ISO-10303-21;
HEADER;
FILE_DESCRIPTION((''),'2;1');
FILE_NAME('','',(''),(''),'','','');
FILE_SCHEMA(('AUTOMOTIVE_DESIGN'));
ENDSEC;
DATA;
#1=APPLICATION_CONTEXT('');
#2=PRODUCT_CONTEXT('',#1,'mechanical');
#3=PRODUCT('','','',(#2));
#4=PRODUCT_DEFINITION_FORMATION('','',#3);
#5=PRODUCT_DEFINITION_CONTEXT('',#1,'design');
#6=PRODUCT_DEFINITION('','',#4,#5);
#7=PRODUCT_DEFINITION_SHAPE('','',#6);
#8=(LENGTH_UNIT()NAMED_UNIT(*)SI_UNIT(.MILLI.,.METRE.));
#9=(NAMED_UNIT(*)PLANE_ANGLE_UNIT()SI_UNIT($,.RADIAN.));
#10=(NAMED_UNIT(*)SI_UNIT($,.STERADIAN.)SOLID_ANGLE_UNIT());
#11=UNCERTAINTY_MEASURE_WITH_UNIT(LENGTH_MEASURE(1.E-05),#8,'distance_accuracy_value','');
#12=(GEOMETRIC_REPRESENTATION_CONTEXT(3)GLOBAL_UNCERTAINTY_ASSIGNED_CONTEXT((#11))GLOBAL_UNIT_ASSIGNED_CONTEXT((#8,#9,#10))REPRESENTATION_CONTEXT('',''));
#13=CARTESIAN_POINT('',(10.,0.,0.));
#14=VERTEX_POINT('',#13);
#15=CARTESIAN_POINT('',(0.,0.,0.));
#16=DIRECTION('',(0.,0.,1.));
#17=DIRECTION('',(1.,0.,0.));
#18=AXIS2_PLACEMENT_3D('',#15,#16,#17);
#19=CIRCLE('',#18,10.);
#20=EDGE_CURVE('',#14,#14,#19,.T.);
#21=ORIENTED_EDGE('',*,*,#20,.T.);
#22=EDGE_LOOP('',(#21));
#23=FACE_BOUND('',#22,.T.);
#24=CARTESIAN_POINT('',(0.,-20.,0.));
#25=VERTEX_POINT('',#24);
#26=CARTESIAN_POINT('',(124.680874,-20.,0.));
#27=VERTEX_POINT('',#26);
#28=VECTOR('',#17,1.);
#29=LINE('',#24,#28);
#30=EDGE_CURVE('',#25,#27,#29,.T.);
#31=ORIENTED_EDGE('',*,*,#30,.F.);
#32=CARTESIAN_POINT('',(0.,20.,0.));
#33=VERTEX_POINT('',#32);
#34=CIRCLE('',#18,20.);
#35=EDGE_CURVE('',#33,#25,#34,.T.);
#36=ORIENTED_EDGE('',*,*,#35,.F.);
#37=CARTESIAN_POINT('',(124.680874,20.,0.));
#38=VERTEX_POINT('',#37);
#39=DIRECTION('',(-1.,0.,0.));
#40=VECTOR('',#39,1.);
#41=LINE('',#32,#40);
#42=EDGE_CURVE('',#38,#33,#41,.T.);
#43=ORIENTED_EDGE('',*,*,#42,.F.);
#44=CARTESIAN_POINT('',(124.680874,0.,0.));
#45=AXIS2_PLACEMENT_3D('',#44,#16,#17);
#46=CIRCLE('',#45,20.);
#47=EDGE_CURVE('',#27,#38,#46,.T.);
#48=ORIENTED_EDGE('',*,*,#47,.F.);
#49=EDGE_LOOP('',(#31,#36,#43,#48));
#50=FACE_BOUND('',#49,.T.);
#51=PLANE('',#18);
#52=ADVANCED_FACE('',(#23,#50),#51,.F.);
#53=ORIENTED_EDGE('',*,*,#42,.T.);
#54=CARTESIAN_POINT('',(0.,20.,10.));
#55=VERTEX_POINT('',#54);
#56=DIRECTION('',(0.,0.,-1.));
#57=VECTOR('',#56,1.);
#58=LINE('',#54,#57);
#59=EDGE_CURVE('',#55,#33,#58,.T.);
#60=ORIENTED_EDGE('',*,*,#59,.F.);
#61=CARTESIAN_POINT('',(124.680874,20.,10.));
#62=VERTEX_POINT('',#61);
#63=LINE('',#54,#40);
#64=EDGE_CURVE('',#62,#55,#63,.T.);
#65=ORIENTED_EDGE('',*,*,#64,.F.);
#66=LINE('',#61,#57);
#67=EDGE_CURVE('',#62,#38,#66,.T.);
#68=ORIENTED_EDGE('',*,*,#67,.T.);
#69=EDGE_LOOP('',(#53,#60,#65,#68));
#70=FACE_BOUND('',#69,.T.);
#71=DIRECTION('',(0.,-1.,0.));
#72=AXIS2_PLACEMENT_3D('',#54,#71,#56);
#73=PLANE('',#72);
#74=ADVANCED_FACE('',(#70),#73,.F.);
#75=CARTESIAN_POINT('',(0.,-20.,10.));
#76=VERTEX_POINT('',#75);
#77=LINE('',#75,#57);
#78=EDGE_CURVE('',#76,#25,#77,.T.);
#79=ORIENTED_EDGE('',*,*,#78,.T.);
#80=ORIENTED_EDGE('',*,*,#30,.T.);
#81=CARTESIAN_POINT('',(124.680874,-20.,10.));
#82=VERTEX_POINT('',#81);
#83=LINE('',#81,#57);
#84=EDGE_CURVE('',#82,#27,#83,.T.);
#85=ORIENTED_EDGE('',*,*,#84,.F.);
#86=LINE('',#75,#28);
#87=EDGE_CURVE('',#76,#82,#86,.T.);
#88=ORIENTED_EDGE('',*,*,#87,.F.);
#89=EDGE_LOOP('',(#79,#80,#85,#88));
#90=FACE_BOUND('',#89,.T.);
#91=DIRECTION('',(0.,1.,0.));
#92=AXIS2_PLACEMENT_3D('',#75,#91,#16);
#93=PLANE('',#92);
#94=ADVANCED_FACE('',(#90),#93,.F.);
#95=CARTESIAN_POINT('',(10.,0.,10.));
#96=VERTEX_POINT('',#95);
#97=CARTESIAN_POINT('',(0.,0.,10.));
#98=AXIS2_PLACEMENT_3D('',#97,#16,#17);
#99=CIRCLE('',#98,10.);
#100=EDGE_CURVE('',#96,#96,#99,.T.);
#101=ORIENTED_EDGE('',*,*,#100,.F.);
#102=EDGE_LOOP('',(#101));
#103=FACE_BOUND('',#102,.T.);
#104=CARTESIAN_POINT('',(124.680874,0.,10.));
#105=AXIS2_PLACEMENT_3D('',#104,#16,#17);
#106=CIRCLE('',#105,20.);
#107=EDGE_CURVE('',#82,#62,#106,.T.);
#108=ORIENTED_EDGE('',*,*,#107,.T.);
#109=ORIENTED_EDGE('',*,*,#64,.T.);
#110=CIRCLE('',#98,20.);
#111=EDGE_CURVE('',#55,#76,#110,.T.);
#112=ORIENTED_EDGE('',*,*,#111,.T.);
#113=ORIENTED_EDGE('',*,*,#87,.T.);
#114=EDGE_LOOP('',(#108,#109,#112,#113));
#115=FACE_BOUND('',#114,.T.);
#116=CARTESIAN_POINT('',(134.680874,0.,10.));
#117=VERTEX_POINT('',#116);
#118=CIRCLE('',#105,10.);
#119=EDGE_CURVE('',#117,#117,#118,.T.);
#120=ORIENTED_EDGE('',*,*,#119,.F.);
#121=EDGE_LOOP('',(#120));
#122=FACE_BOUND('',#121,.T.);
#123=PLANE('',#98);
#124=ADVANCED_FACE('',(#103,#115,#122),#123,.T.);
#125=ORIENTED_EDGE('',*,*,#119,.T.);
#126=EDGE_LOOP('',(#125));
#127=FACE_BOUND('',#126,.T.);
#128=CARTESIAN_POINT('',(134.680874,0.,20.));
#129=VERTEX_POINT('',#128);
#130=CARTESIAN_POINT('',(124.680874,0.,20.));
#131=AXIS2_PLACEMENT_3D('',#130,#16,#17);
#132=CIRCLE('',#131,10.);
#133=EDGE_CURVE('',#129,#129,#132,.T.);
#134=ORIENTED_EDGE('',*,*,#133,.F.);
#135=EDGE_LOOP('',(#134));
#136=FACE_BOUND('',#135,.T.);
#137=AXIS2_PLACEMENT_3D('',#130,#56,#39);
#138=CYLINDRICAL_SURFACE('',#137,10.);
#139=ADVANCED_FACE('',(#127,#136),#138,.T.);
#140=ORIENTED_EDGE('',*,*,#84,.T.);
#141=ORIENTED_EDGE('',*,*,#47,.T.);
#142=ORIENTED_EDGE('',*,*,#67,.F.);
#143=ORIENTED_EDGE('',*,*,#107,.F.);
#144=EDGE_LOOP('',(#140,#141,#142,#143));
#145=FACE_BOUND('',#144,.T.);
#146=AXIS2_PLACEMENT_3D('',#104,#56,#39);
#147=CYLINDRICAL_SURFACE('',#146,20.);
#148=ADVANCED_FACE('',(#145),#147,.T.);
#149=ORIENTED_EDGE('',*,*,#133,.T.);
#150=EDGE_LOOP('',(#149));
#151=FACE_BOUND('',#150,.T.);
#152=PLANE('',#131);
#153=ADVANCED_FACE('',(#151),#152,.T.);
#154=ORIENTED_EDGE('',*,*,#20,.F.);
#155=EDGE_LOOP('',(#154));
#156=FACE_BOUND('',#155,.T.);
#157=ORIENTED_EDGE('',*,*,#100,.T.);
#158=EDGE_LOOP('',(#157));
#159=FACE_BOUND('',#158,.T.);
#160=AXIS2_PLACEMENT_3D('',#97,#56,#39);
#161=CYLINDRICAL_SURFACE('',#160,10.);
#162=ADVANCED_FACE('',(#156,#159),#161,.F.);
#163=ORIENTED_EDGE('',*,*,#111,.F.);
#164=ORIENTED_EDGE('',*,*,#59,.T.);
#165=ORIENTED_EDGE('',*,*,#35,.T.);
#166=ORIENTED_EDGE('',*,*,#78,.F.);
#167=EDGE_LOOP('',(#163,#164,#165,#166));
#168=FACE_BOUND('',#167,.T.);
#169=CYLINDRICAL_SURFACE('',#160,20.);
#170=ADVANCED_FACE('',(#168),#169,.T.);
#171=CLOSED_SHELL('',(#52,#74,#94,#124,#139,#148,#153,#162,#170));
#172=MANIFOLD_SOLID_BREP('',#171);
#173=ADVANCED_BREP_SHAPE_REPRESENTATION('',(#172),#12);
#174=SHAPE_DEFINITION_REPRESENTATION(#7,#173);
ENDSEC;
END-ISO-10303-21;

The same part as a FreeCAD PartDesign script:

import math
import FreeCAD as App
import Part
import Sketcher
Q = App.Units.Quantity

doc = App.newDocument("Part")
body = doc.addObject("PartDesign::Body", "Body")

sketch1 = body.newObject("Sketcher::SketchObject", "Sketch")
sketch1.AttachmentSupport = (doc.getObject("XY_Plane"), [""])
sketch1.MapMode = "FlatFace"
sketch1.addGeometry([
    Part.LineSegment(App.Vector(125, 20, 0), App.Vector(0, 20, 0)),
    Part.ArcOfCircle(Part.Circle(App.Vector(0, 0, 0), App.Vector(0, 0, 1), 20), math.radians(90), math.radians(270)),
    Part.LineSegment(App.Vector(0, -20, 0), App.Vector(125, -20, 0)),
    Part.ArcOfCircle(Part.Circle(App.Vector(125, 0, 0), App.Vector(0, 0, 1), 20), math.radians(-90), math.radians(90)),
    Part.Circle(App.Vector(0, 0, 0), App.Vector(0, 0, 1), 10),
], False)
sketch1.addConstraint([
    Sketcher.Constraint("Tangent", 0, 2, 1, 1),
    Sketcher.Constraint("Tangent", 1, 2, 2, 1),
    Sketcher.Constraint("Tangent", 2, 2, 3, 1),
    Sketcher.Constraint("Tangent", 3, 2, 0, 1),
    Sketcher.Constraint("Horizontal", 0),
    Sketcher.Constraint("Horizontal", 2),
    Sketcher.Constraint("Coincident", 1, 3, -1, 1),
    Sketcher.Constraint("Coincident", 4, 3, -1, 1),
    Sketcher.Constraint("Diameter", 4, Q("20 mm")),
    Sketcher.Constraint("Radius", 1, Q("20 mm")),
    Sketcher.Constraint("DistanceX", 0, 2, 0, 1, Q("124.680874 mm")),
])
pad1 = body.newObject("PartDesign::Pad", "Pad")
pad1.Profile = sketch1
pad1.Length = 10

sketch2 = body.newObject("Sketcher::SketchObject", "Sketch001")
sketch2.AttachmentSupport = (doc.getObject("XY_Plane"), [""])
sketch2.MapMode = "FlatFace"
sketch2.AttachmentOffset = App.Placement(App.Vector(0, 0, 10), App.Rotation())
sketch2.addGeometry(Part.Circle(App.Vector(125, 0, 0), App.Vector(0, 0, 1), 10), False)
sketch2.addConstraint([
    Sketcher.Constraint("PointOnObject", 0, 3, -1),
    Sketcher.Constraint("Diameter", 0, Q("20 mm")),
    Sketcher.Constraint("DistanceX", -1, 1, 0, 3, Q("124.680874 mm")),
])
pad2 = body.newObject("PartDesign::Pad", "Pad001")
pad2.Profile = sketch2
pad2.Length = 10

doc.recompute()
